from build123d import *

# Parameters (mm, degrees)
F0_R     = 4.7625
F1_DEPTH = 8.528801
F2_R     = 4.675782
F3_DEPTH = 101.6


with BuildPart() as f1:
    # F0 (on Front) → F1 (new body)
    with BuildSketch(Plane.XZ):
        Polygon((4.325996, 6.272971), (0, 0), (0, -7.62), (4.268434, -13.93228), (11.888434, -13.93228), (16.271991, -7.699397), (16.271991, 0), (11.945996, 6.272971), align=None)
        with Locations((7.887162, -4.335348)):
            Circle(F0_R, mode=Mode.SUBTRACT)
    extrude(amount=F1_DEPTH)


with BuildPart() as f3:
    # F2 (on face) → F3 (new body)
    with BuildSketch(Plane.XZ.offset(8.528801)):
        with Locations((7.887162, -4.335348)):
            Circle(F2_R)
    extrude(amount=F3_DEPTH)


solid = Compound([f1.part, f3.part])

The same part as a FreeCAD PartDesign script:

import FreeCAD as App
import Part
import Sketcher
Q = App.Units.Quantity

doc = App.newDocument("Part")
body = doc.addObject("PartDesign::Body", "Body")

# Sketch on XZ plane
sketch1 = body.newObject("Sketcher::SketchObject", "Sketch")
sketch1.AttachmentSupport = (doc.getObject("XZ_Plane"), [""])
sketch1.MapMode = "FlatFace"
sketch1.addGeometry([
    Part.LineSegment(App.Vector(4.3, 6.3, 0), App.Vector(0, 0, 0)),  # 0
    Part.LineSegment(App.Vector(0, 0, 0), App.Vector(0, -7.6, 0)),  # 1
    Part.LineSegment(App.Vector(0, -7.6, 0), App.Vector(4.3, -13.9, 0)),  # 2
    Part.LineSegment(App.Vector(4.3, -13.9, 0), App.Vector(11.9, -13.9, 0)),  # 3
    Part.LineSegment(App.Vector(11.9, -13.9, 0), App.Vector(16.3, -7.7, 0)),  # 4
    Part.LineSegment(App.Vector(16.3, -7.7, 0), App.Vector(16.3, 0, 0)),  # 5
    Part.LineSegment(App.Vector(16.3, 0, 0), App.Vector(11.9, 6.3, 0)),  # 6
    Part.LineSegment(App.Vector(11.9, 6.3, 0), App.Vector(4.3, 6.3, 0)),  # 7
    Part.Circle(App.Vector(7.9, -4.3, 0), App.Vector(0, 0, 1), 4.8),  # 8
], False)
sketch1.addConstraint([
    Sketcher.Constraint("Coincident", 0, 2, 1, 1),
    Sketcher.Constraint("Coincident", 1, 2, 2, 1),
    Sketcher.Constraint("Coincident", 2, 2, 3, 1),
    Sketcher.Constraint("Coincident", 3, 2, 4, 1),
    Sketcher.Constraint("Coincident", 4, 2, 5, 1),
    Sketcher.Constraint("Coincident", 5, 2, 6, 1),
    Sketcher.Constraint("Coincident", 6, 2, 7, 1),
    Sketcher.Constraint("Coincident", 7, 2, 0, 1),
    Sketcher.Constraint("Vertical", 1),
    Sketcher.Constraint("Horizontal", 3),
    Sketcher.Constraint("Vertical", 5),
    Sketcher.Constraint("Horizontal", 7),
    Sketcher.Constraint("Coincident", 0, 2, -1, 1),
    Sketcher.Constraint("PointOnObject", 5, 2, -1),
    Sketcher.Constraint("Equal", 3, 7),
    Sketcher.Constraint("Equal", 7, 1),
    Sketcher.Constraint("Equal", 0, 2),
    Sketcher.Constraint("Equal", 2, 4),
    Sketcher.Constraint("Equal", 4, 6),
    Sketcher.Constraint("Diameter", 8, Q("0.375 in")),
    Sketcher.Constraint("DistanceX", 3, 1, 3, 2, Q("0.3 in")),
    Sketcher.Constraint("Distance", 0, Q("0.3 in")),
    Sketcher.Constraint("DistanceY", 5, 1, 5, 2, 7.699397),
    Sketcher.Constraint("DistanceY", 2, 2, -1, 1, 13.93228),
    Sketcher.Constraint("DistanceX", 2, 2, 8, 3, 3.618728),
    Sketcher.Constraint("DistanceY", 4, 2, 8, 3, 3.364049),
])
pad1 = body.newObject("PartDesign::Pad", "Pad")
pad1.Profile = sketch1
pad1.Length = 8.528801
body2 = doc.addObject("PartDesign::Body", "Body001")

# Sketch on XZ plane
sketch2 = body2.newObject("Sketcher::SketchObject", "Sketch001")
sketch2.AttachmentSupport = (doc.getObject("XZ_Plane001"), [""])
sketch2.MapMode = "FlatFace"
sketch2.AttachmentOffset = App.Placement(App.Vector(0, 0, 8.528801), App.Rotation())
sketch2.addGeometry(Part.Circle(App.Vector(7.9, -4.3, 0), App.Vector(0, 0, 1), 4.7), False)
sketch2.addConstraint([
    Sketcher.Constraint("Diameter", 0, 9.351564),
    Sketcher.Constraint("DistanceX", -1, 1, 0, 3, 7.887162),
    Sketcher.Constraint("DistanceY", 0, 3, -1, 1, 4.335348),
])
pad2 = body2.newObject("PartDesign::Pad", "Pad001")
pad2.Profile = sketch2
pad2.Length = Q("4 in")

doc.recompute()
